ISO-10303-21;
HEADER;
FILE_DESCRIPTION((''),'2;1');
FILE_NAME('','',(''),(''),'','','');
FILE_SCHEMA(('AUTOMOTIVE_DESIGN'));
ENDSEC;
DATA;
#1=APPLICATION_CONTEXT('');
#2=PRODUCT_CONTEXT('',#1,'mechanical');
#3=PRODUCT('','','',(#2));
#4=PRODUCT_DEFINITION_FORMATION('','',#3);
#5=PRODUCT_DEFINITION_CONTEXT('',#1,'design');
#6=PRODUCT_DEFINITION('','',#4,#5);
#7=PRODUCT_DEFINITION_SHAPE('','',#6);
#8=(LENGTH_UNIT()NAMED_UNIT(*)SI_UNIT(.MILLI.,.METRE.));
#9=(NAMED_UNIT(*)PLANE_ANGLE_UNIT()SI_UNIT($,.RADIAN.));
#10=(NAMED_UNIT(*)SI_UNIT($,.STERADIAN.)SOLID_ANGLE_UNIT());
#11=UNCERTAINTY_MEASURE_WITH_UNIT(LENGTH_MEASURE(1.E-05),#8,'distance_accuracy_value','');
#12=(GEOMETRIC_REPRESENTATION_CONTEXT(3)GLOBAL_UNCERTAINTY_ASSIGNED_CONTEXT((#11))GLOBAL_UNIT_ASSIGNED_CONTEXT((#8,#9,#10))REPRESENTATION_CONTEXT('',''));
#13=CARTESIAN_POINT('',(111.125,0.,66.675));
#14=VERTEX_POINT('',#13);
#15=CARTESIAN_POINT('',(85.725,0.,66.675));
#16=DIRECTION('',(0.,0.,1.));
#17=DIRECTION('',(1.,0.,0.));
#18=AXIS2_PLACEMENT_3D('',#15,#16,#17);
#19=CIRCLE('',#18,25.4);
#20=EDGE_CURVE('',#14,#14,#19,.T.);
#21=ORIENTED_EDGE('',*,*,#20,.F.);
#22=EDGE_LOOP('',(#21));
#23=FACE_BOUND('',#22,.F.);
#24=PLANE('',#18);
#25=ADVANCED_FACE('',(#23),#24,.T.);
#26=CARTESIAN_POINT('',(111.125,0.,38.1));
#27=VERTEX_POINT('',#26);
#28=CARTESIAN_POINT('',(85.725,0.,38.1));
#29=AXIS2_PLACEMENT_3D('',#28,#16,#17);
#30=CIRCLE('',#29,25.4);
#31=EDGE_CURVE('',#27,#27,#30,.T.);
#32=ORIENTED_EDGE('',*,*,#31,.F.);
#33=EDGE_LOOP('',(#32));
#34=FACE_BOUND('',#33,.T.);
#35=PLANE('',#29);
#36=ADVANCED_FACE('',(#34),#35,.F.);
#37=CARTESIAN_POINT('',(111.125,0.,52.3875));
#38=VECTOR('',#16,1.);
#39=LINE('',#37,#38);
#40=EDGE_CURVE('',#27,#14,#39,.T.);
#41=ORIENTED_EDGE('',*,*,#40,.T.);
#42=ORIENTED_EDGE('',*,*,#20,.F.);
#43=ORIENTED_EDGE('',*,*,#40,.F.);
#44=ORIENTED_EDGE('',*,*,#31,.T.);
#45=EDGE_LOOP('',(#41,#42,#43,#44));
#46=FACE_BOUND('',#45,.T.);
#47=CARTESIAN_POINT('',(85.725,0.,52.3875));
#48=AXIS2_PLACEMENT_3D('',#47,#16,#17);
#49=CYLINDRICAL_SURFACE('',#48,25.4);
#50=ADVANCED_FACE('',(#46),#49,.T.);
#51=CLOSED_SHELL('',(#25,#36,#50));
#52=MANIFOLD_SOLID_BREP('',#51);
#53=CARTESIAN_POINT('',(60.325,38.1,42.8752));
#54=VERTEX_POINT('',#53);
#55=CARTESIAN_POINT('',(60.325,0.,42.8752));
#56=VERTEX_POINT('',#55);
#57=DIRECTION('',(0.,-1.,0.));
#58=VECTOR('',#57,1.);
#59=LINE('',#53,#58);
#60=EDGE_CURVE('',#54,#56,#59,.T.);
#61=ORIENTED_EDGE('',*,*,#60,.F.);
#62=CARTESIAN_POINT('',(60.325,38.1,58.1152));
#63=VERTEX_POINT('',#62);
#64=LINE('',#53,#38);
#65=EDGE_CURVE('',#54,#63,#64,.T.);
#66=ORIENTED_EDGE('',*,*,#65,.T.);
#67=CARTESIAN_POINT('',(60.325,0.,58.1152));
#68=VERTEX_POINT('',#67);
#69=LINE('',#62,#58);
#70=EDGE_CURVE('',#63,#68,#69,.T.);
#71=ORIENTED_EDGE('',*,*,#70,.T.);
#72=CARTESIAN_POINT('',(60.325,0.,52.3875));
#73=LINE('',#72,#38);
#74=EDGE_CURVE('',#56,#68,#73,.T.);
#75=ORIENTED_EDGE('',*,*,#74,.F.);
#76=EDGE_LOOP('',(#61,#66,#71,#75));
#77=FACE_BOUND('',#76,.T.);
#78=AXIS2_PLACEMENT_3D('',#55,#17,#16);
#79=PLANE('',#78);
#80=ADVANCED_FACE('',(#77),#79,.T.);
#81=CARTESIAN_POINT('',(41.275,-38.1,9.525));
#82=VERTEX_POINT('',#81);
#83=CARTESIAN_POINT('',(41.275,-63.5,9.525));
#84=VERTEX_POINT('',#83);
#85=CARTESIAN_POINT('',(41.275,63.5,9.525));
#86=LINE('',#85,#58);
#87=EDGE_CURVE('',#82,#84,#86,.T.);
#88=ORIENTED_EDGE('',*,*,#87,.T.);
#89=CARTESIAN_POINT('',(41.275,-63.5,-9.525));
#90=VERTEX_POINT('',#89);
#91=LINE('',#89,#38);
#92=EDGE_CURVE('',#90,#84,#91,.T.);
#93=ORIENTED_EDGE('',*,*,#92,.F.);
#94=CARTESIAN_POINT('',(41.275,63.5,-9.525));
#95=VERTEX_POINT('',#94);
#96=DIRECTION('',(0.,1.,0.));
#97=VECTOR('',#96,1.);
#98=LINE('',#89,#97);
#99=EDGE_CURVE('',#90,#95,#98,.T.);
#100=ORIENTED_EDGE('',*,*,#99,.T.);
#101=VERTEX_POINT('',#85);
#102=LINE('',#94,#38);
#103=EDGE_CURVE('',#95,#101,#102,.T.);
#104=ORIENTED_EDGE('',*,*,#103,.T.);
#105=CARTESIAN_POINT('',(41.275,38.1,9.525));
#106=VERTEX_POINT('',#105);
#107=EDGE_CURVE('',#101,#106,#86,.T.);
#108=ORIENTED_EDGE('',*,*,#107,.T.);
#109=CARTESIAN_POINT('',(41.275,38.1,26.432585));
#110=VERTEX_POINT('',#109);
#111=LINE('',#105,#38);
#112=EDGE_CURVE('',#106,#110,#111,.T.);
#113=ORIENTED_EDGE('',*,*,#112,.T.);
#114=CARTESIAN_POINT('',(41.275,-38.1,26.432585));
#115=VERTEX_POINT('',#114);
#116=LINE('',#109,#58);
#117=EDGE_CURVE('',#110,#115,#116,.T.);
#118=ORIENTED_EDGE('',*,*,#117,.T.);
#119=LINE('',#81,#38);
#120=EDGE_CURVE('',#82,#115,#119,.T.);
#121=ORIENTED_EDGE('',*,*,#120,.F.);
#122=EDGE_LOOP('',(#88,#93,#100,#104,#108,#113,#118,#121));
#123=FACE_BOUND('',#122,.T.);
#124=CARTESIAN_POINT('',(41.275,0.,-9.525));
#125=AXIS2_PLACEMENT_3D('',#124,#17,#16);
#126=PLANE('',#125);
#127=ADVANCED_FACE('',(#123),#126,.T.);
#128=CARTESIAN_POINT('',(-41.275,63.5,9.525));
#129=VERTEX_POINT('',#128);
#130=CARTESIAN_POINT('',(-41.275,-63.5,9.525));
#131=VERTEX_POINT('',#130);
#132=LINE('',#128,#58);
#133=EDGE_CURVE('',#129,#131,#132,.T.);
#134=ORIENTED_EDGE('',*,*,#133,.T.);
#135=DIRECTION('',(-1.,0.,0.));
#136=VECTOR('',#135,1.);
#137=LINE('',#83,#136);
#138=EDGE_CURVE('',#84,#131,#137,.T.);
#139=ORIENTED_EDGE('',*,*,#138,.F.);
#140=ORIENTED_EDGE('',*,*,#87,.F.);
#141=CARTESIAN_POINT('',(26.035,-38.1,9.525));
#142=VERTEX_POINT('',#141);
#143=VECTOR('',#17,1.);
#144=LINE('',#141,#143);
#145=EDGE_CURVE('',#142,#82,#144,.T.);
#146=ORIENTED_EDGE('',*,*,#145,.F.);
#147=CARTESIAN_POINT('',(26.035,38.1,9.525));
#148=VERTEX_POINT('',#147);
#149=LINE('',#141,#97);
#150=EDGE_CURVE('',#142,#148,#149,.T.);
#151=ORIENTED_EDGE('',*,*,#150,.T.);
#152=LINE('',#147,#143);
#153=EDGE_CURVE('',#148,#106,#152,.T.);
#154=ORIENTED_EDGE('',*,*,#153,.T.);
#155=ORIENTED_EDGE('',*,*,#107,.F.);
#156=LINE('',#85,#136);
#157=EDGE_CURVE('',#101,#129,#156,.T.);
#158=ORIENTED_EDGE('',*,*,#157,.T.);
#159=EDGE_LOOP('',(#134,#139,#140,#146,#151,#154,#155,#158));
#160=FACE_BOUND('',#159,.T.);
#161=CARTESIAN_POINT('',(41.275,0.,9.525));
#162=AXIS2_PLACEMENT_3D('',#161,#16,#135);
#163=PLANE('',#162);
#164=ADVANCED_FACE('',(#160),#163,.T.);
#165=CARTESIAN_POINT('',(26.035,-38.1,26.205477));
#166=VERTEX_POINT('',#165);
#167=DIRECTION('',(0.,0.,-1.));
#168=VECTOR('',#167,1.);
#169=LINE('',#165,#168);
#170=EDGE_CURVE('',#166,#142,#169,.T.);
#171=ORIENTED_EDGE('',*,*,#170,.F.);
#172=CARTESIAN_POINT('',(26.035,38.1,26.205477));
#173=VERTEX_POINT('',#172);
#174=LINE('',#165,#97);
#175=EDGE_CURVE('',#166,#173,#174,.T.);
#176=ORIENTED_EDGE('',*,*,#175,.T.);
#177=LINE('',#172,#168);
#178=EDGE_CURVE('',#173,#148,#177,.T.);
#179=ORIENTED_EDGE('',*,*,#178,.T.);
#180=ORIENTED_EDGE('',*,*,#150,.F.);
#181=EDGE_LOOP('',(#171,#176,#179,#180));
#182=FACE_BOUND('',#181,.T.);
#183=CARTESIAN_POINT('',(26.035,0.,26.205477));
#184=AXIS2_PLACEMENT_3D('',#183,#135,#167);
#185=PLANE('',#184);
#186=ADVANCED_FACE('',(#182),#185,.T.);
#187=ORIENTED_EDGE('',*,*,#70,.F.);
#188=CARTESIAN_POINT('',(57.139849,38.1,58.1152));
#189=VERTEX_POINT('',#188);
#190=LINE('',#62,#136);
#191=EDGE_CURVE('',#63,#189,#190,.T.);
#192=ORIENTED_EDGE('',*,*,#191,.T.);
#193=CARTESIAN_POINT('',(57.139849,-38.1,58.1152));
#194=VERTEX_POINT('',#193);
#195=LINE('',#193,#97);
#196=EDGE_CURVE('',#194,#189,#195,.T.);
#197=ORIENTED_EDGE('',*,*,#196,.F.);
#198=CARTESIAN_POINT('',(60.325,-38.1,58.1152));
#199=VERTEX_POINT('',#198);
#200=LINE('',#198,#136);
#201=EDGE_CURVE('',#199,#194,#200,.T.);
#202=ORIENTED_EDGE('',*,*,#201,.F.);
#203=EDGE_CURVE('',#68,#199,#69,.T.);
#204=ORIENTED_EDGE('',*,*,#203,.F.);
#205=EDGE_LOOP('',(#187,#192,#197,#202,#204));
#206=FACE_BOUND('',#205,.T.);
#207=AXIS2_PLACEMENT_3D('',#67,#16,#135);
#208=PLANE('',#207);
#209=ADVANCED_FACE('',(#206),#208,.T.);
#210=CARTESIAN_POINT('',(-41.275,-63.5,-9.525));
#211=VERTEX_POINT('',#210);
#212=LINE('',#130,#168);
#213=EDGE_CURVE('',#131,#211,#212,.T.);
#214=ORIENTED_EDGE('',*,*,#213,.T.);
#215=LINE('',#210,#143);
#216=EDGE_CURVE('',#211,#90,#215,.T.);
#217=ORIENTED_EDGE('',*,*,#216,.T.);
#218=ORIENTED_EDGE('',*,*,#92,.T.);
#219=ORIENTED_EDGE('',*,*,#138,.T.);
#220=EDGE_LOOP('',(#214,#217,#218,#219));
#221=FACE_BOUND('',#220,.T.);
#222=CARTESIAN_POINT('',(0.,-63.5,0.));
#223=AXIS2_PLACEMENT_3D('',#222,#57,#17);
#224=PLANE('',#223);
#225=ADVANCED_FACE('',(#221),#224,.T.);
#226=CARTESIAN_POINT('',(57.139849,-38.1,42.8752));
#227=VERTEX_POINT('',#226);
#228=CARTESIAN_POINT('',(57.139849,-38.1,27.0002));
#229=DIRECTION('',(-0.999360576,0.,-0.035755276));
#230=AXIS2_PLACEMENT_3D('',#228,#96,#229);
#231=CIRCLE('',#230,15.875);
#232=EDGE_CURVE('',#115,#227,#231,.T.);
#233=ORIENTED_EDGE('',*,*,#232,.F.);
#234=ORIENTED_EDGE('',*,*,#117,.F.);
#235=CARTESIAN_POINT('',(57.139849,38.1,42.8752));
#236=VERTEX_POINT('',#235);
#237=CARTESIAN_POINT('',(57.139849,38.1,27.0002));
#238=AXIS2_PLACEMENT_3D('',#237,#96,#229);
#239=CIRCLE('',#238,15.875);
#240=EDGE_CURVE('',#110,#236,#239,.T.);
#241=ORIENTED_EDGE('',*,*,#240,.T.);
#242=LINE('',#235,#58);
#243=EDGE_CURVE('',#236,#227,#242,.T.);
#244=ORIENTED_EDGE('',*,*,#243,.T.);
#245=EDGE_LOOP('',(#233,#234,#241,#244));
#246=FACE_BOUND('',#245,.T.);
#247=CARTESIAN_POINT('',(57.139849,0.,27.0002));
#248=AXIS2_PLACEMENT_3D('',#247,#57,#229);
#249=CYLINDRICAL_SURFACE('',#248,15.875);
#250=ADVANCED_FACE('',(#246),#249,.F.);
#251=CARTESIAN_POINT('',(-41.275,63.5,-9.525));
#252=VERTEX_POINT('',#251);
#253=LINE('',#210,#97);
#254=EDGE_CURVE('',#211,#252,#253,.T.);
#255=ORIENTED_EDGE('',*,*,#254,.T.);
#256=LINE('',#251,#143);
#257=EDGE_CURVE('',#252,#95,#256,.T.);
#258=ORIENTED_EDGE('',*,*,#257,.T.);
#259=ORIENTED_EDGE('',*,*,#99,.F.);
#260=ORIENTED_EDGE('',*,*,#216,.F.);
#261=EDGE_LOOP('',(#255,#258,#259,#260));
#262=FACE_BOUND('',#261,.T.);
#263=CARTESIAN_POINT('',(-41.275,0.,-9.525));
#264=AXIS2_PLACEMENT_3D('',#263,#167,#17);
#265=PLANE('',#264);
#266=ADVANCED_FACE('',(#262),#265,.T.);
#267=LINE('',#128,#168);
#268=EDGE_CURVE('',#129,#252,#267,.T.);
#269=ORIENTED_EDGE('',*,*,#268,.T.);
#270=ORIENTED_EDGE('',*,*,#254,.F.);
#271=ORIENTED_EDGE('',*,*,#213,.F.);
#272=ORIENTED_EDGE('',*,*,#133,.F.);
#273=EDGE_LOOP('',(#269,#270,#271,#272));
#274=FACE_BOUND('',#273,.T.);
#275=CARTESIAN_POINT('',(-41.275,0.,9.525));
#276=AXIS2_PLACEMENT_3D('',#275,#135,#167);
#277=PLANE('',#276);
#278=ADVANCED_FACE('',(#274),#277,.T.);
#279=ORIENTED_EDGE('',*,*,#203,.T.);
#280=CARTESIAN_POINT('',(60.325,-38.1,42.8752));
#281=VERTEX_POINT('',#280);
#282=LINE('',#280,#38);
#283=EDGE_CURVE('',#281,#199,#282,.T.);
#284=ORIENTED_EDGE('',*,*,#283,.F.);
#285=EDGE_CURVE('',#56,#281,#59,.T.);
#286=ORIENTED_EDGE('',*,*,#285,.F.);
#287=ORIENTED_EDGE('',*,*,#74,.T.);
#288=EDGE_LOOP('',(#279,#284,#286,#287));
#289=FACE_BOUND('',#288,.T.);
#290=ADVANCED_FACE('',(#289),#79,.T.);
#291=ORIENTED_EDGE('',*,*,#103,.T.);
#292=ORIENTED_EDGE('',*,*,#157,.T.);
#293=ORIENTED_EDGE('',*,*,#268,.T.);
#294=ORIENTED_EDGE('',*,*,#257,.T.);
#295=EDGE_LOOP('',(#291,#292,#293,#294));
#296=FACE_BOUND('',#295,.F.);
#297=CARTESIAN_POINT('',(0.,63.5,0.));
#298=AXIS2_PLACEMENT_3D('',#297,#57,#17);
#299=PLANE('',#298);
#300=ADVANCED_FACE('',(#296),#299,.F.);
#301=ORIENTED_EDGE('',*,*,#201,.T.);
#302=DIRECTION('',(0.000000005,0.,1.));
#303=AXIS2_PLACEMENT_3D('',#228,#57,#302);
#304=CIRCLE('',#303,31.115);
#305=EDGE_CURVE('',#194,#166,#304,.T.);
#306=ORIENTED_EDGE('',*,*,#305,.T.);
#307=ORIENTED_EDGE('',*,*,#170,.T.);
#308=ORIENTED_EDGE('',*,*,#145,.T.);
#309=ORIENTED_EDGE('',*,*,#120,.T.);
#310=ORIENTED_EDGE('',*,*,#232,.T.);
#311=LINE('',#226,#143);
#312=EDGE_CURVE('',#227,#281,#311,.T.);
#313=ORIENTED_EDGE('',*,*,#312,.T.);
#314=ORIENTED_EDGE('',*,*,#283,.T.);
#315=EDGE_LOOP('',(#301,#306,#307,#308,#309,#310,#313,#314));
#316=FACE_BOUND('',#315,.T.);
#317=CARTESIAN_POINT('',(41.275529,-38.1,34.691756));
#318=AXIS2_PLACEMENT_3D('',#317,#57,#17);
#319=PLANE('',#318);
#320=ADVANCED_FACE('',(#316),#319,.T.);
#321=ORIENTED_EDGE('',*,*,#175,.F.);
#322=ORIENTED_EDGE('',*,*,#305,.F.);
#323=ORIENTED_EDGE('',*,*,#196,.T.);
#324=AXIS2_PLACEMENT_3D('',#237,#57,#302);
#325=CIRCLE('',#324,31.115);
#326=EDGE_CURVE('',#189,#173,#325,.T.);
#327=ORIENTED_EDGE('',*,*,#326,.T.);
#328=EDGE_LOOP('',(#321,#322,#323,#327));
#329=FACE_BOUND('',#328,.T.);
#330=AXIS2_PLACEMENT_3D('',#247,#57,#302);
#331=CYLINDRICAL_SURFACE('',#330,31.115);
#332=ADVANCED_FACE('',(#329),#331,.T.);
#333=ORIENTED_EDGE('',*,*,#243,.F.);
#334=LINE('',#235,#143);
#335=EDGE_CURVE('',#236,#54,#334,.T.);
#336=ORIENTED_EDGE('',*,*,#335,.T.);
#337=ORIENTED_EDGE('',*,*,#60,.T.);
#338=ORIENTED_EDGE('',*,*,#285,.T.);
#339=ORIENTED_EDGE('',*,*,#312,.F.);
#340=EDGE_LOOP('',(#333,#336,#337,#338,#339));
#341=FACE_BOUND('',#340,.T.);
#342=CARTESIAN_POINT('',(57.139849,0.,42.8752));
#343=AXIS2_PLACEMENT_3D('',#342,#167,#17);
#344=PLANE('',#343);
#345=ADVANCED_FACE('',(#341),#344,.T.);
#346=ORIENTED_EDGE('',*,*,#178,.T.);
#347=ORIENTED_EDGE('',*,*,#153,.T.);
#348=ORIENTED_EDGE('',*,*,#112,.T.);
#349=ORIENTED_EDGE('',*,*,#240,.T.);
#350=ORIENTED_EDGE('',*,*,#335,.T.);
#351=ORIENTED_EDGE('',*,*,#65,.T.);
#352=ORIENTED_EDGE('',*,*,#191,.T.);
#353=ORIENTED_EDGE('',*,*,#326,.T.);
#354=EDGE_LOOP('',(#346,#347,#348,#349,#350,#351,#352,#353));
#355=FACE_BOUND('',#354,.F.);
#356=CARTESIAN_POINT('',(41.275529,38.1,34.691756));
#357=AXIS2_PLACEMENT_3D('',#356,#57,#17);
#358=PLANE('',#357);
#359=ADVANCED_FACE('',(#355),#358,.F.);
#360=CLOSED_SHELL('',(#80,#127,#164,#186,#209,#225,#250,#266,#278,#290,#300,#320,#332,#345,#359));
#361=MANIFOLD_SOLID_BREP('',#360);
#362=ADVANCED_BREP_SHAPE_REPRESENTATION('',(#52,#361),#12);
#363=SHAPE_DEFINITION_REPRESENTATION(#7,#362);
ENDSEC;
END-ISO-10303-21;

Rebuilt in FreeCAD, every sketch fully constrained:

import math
import FreeCAD as App
import Part
import Sketcher
from FreeCAD import Vector
Q = App.Units.Quantity


def add_polygon(sketch, points):
    """Adds a closed chain of lines whose ends are joined by coincident constraints."""
    first, n = sketch.GeometryCount, len(points)
    for a, b in zip(points, points[1:] + points[:1]):
        sketch.addGeometry(Part.LineSegment(App.Vector(*a, 0), App.Vector(*b, 0)), False)
    for i in range(n):
        sketch.addConstraint(Sketcher.Constraint("Coincident", first + i, 2, first + (i + 1) % n, 1))

doc = App.newDocument("Part")
body = doc.addObject("PartDesign::Body", "Body")
body.AllowCompound = True

# Sketch on XZ plane
sketch1 = doc.addObject("Sketcher::SketchObject", "Sketch")
body.addObject(sketch1)
sketch1.AttachmentSupport = (doc.XZ_Plane, [""])
sketch1.MapMode = "FlatFace"
add_polygon(sketch1, [(41.275, -9.525), (41.275, 9.525), (-41.275, 9.525), (-41.275, -9.525)])  # lines 0-3
sketch1.addConstraint([
    Sketcher.Constraint("Vertical", 0),
    Sketcher.Constraint("Horizontal", 1),
    Sketcher.Constraint("Vertical", 2),
    Sketcher.Constraint("Horizontal", 3),
    Sketcher.Constraint("Symmetric", 0, 2, 2, 2, -1, 1),
    Sketcher.Constraint("DistanceX", 1, 2, 1, 1, Q("3.25 in")),
    Sketcher.Constraint("DistanceY", 0, 1, 0, 2, Q("0.75 in")),
])
pad1 = doc.addObject("PartDesign::Pad", "Pad")
body.addObject(pad1)
pad1.Profile = sketch1
pad1.Length = Q("5 in")
pad1.Midplane = True

# Sketch on XZ plane
sketch2 = doc.addObject("Sketcher::SketchObject", "Sketch001")
body.addObject(sketch2)
sketch2.AttachmentSupport = (doc.XZ_Plane, [""])
sketch2.MapMode = "FlatFace"
sketch2.addGeometry([
    Part.LineSegment(Vector(26.035, 9.525, 0), Vector(41.275, 9.525, 0)),  # 0
    Part.LineSegment(Vector(41.275, 9.525, 0), Vector(41.275, 26.432585, 0)),  # 1
    Part.ArcOfCircle(Part.Circle(Vector(57.139849, 27.0002, 0), Vector(0, 0, 1), 15.875), math.radians(90), math.radians(182.049063)),  # 2
    Part.LineSegment(Vector(57.139849, 42.8752, 0), Vector(60.325, 42.8752, 0)),  # 3
    Part.LineSegment(Vector(60.325, 42.8752, 0), Vector(60.325, 58.1152, 0)),  # 4
    Part.LineSegment(Vector(60.325, 58.1152, 0), Vector(57.139849, 58.1152, 0)),  # 5
    Part.ArcOfCircle(Part.Circle(Vector(57.139849, 27.0002, 0), Vector(0, 0, 1), 31.115), math.radians(90), math.radians(181.463578)),  # 6
    Part.LineSegment(Vector(26.035, 26.205477, 0), Vector(26.035, 9.525, 0)),  # 7
], False)
sketch2.addConstraint([
    Sketcher.Constraint("Coincident", 0, 2, 1, 1),
    Sketcher.Constraint("Coincident", 1, 2, 2, 2),
    Sketcher.Constraint("Tangent", 2, 1, 3, 1),
    Sketcher.Constraint("Coincident", 3, 2, 4, 1),
    Sketcher.Constraint("Coincident", 4, 2, 5, 1),
    Sketcher.Constraint("Tangent", 5, 2, 6, 1),
    Sketcher.Constraint("Coincident", 6, 2, 7, 1),
    Sketcher.Constraint("Coincident", 7, 2, 0, 1),
    Sketcher.Constraint("Horizontal", 0),
    Sketcher.Constraint("Vertical", 1),
    Sketcher.Constraint("Horizontal", 3),
    Sketcher.Constraint("Vertical", 4),
    Sketcher.Constraint("Horizontal", 5),
    Sketcher.Constraint("Vertical", 7),
    Sketcher.Constraint("Coincident", 6, 3, 2, 3),
    Sketcher.Constraint("Equal", 0, 4),
    Sketcher.Constraint("DistanceX", 0, 1, 0, 2, Q("0.6 in")),
    Sketcher.Constraint("Radius", 2, Q("0.625 in")),
    Sketcher.Constraint("DistanceX", 1, 2, 3, 2, Q("0.75 in")),
    Sketcher.Constraint("DistanceY", -1, 1, 2, 3, Q("1.063 in")),
    Sketcher.Constraint("DistanceX", -1, 1, 0, 2, Q("1.625 in")),
    Sketcher.Constraint("DistanceY", -1, 1, 0, 2, Q("0.375 in")),
    Sketcher.Constraint("DistanceX", 3, 1, 3, 2, Q("3.185151 mm")),
])
pad2 = doc.addObject("PartDesign::Pad", "Pad001")
body.addObject(pad2)
pad2.Profile = sketch2
pad2.Length = Q("3 in")
pad2.Midplane = True

# Sketch on XZ plane
sketch3 = doc.addObject("Sketcher::SketchObject", "Sketch002")
body.addObject(sketch3)
sketch3.AttachmentSupport = (doc.XZ_Plane, [""])
sketch3.MapMode = "FlatFace"
add_polygon(sketch3, [(85.725, 66.675), (85.725, 38.1), (111.125, 38.1), (111.125, 66.675)])  # lines 0-3
sketch3.addGeometry(Part.LineSegment(Vector(85.725, 38.1, 0), Vector(85.725, 66.675, 0)), True)  # axis
sketch3.addConstraint([
    Sketcher.Constraint("Vertical", 0),
    Sketcher.Constraint("Horizontal", 1),
    Sketcher.Constraint("Vertical", 2),
    Sketcher.Constraint("Horizontal", 3),
    Sketcher.Constraint("Vertical", 4),
    Sketcher.Constraint("Coincident", 4, 1, 0, 2),
    Sketcher.Constraint("Horizontal", 2, 2, 4, 2),
    Sketcher.Constraint("DistanceX", 1, 1, 1, 2, Q("1 in")),
    Sketcher.Constraint("DistanceY", -1, 1, 0, 2, Q("1.5 in")),
    Sketcher.Constraint("DistanceY", 0, 2, 0, 1, Q("1.125 in")),
    Sketcher.Constraint("DistanceX", -1, 1, 0, 2, Q("3.375 in")),
])
revolution = doc.addObject("PartDesign::Revolution", "Revolution")
body.addObject(revolution)
revolution.Profile = sketch3
revolution.ReferenceAxis = (sketch3, ["Axis0"])
revolution.Angle = 360

doc.recompute()
